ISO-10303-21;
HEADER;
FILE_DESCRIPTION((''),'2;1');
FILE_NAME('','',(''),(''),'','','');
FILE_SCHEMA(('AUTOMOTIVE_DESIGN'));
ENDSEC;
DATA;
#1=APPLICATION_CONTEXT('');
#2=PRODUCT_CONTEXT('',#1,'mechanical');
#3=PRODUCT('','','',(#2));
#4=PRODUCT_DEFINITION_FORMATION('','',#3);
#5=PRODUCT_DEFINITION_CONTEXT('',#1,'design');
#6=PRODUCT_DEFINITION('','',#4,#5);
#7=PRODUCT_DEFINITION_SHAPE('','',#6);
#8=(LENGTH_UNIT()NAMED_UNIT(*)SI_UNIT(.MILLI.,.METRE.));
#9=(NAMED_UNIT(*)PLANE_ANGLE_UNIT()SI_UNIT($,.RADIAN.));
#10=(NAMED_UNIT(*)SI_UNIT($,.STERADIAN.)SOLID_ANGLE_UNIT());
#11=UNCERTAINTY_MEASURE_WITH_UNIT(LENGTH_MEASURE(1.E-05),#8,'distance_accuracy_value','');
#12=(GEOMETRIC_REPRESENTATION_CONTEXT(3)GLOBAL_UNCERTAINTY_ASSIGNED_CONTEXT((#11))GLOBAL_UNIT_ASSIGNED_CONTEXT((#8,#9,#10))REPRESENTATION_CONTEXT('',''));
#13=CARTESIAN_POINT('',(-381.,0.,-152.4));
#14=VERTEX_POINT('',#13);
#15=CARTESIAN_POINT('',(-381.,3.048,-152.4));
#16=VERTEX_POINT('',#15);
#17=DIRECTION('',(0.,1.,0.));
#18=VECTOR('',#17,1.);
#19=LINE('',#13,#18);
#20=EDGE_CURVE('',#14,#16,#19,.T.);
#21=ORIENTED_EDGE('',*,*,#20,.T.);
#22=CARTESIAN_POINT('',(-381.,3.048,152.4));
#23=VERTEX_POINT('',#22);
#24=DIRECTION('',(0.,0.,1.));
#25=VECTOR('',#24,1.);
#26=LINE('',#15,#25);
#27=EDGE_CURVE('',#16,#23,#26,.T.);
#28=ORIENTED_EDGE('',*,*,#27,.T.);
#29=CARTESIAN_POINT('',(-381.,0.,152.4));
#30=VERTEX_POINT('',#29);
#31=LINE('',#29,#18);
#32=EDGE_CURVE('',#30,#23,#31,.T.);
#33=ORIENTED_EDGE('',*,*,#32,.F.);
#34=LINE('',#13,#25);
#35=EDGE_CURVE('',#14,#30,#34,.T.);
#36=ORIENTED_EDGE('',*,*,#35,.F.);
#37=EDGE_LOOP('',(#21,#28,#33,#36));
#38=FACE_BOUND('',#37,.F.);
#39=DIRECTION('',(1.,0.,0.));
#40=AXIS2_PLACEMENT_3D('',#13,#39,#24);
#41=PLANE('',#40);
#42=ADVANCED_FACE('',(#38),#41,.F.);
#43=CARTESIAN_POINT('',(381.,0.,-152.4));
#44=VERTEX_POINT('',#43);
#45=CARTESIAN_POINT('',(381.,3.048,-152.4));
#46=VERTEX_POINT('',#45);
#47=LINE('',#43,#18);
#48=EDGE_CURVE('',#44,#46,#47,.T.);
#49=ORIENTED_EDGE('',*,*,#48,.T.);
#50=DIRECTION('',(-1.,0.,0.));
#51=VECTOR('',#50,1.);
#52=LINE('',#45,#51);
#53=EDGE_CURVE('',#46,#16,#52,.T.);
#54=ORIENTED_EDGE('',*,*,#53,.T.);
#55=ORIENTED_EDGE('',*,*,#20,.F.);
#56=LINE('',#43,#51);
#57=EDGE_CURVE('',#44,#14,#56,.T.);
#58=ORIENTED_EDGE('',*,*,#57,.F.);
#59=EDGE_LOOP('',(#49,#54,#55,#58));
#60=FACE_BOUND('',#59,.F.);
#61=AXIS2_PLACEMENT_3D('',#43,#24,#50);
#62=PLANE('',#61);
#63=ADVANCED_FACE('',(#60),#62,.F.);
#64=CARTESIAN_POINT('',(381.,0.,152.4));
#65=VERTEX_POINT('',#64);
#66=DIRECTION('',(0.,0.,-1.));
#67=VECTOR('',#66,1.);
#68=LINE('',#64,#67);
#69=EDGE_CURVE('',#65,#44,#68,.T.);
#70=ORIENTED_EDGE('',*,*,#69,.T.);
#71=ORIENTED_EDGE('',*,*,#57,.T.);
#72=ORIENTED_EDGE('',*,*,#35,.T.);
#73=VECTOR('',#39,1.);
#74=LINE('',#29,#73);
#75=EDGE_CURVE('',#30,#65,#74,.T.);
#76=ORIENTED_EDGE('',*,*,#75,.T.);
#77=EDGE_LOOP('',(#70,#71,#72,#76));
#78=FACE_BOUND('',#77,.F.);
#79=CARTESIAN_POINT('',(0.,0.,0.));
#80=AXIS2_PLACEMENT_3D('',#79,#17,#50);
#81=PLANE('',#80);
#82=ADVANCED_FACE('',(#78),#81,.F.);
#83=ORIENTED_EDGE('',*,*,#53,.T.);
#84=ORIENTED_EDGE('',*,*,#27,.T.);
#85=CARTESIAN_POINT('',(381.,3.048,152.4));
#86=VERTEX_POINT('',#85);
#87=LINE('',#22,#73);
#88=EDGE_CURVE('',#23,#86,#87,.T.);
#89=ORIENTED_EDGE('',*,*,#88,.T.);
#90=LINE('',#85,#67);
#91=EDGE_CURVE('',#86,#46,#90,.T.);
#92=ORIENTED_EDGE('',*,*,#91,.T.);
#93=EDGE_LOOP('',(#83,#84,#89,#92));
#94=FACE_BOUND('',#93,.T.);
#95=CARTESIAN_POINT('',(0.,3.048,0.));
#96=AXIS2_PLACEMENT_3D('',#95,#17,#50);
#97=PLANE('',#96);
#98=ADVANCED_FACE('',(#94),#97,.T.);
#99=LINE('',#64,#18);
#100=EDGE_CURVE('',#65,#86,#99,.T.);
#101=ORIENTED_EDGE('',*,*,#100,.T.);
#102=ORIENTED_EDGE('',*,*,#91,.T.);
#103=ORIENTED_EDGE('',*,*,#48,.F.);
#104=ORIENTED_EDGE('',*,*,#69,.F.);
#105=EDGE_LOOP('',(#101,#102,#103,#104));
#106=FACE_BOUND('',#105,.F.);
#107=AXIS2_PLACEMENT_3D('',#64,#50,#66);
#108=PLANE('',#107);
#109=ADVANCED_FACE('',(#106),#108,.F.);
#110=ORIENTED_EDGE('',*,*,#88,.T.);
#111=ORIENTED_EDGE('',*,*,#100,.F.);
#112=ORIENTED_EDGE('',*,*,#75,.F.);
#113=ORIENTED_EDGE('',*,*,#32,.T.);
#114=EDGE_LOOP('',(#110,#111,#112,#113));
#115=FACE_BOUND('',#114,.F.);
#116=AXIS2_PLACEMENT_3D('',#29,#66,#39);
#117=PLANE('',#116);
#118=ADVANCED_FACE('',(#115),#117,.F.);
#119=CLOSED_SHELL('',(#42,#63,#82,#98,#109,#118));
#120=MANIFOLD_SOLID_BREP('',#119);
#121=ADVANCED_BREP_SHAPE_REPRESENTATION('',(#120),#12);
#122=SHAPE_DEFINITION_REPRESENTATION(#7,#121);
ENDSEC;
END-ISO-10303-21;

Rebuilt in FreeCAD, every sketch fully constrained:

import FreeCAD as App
import Part
import Sketcher
from FreeCAD import Vector
Q = App.Units.Quantity


def add_polygon(sketch, points):
    """Adds a closed chain of lines whose ends are joined by coincident constraints."""
    first, n = sketch.GeometryCount, len(points)
    for a, b in zip(points, points[1:] + points[:1]):
        sketch.addGeometry(Part.LineSegment(App.Vector(*a, 0), App.Vector(*b, 0)), False)
    for i in range(n):
        sketch.addConstraint(Sketcher.Constraint("Coincident", first + i, 2, first + (i + 1) % n, 1))

doc = App.newDocument("Part")
body = doc.addObject("PartDesign::Body", "Body")

# Sketch on XZ plane
sketch1 = doc.addObject("Sketcher::SketchObject", "Sketch")
body.addObject(sketch1)
sketch1.AttachmentSupport = (doc.XZ_Plane, [""])
sketch1.MapMode = "FlatFace"
add_polygon(sketch1, [(-381, -152), (-381, 152), (381, 152), (381, -152)])  # lines 0-3
sketch1.addConstraint([
    Sketcher.Constraint("Vertical", 0),
    Sketcher.Constraint("Horizontal", 1),
    Sketcher.Constraint("Vertical", 2),
    Sketcher.Constraint("Horizontal", 3),
    Sketcher.Constraint("Symmetric", 0, 2, 2, 2, -1, 1),
    Sketcher.Constraint("DistanceX", 1, 1, 1, 2, Q("30 in")),
    Sketcher.Constraint("DistanceY", 0, 1, 0, 2, Q("12 in")),
])
pad1 = doc.addObject("PartDesign::Pad", "Pad")
body.addObject(pad1)
pad1.Profile = sketch1
pad1.Length = Q("0.12 in")
pad1.Reversed = True

doc.recompute()
